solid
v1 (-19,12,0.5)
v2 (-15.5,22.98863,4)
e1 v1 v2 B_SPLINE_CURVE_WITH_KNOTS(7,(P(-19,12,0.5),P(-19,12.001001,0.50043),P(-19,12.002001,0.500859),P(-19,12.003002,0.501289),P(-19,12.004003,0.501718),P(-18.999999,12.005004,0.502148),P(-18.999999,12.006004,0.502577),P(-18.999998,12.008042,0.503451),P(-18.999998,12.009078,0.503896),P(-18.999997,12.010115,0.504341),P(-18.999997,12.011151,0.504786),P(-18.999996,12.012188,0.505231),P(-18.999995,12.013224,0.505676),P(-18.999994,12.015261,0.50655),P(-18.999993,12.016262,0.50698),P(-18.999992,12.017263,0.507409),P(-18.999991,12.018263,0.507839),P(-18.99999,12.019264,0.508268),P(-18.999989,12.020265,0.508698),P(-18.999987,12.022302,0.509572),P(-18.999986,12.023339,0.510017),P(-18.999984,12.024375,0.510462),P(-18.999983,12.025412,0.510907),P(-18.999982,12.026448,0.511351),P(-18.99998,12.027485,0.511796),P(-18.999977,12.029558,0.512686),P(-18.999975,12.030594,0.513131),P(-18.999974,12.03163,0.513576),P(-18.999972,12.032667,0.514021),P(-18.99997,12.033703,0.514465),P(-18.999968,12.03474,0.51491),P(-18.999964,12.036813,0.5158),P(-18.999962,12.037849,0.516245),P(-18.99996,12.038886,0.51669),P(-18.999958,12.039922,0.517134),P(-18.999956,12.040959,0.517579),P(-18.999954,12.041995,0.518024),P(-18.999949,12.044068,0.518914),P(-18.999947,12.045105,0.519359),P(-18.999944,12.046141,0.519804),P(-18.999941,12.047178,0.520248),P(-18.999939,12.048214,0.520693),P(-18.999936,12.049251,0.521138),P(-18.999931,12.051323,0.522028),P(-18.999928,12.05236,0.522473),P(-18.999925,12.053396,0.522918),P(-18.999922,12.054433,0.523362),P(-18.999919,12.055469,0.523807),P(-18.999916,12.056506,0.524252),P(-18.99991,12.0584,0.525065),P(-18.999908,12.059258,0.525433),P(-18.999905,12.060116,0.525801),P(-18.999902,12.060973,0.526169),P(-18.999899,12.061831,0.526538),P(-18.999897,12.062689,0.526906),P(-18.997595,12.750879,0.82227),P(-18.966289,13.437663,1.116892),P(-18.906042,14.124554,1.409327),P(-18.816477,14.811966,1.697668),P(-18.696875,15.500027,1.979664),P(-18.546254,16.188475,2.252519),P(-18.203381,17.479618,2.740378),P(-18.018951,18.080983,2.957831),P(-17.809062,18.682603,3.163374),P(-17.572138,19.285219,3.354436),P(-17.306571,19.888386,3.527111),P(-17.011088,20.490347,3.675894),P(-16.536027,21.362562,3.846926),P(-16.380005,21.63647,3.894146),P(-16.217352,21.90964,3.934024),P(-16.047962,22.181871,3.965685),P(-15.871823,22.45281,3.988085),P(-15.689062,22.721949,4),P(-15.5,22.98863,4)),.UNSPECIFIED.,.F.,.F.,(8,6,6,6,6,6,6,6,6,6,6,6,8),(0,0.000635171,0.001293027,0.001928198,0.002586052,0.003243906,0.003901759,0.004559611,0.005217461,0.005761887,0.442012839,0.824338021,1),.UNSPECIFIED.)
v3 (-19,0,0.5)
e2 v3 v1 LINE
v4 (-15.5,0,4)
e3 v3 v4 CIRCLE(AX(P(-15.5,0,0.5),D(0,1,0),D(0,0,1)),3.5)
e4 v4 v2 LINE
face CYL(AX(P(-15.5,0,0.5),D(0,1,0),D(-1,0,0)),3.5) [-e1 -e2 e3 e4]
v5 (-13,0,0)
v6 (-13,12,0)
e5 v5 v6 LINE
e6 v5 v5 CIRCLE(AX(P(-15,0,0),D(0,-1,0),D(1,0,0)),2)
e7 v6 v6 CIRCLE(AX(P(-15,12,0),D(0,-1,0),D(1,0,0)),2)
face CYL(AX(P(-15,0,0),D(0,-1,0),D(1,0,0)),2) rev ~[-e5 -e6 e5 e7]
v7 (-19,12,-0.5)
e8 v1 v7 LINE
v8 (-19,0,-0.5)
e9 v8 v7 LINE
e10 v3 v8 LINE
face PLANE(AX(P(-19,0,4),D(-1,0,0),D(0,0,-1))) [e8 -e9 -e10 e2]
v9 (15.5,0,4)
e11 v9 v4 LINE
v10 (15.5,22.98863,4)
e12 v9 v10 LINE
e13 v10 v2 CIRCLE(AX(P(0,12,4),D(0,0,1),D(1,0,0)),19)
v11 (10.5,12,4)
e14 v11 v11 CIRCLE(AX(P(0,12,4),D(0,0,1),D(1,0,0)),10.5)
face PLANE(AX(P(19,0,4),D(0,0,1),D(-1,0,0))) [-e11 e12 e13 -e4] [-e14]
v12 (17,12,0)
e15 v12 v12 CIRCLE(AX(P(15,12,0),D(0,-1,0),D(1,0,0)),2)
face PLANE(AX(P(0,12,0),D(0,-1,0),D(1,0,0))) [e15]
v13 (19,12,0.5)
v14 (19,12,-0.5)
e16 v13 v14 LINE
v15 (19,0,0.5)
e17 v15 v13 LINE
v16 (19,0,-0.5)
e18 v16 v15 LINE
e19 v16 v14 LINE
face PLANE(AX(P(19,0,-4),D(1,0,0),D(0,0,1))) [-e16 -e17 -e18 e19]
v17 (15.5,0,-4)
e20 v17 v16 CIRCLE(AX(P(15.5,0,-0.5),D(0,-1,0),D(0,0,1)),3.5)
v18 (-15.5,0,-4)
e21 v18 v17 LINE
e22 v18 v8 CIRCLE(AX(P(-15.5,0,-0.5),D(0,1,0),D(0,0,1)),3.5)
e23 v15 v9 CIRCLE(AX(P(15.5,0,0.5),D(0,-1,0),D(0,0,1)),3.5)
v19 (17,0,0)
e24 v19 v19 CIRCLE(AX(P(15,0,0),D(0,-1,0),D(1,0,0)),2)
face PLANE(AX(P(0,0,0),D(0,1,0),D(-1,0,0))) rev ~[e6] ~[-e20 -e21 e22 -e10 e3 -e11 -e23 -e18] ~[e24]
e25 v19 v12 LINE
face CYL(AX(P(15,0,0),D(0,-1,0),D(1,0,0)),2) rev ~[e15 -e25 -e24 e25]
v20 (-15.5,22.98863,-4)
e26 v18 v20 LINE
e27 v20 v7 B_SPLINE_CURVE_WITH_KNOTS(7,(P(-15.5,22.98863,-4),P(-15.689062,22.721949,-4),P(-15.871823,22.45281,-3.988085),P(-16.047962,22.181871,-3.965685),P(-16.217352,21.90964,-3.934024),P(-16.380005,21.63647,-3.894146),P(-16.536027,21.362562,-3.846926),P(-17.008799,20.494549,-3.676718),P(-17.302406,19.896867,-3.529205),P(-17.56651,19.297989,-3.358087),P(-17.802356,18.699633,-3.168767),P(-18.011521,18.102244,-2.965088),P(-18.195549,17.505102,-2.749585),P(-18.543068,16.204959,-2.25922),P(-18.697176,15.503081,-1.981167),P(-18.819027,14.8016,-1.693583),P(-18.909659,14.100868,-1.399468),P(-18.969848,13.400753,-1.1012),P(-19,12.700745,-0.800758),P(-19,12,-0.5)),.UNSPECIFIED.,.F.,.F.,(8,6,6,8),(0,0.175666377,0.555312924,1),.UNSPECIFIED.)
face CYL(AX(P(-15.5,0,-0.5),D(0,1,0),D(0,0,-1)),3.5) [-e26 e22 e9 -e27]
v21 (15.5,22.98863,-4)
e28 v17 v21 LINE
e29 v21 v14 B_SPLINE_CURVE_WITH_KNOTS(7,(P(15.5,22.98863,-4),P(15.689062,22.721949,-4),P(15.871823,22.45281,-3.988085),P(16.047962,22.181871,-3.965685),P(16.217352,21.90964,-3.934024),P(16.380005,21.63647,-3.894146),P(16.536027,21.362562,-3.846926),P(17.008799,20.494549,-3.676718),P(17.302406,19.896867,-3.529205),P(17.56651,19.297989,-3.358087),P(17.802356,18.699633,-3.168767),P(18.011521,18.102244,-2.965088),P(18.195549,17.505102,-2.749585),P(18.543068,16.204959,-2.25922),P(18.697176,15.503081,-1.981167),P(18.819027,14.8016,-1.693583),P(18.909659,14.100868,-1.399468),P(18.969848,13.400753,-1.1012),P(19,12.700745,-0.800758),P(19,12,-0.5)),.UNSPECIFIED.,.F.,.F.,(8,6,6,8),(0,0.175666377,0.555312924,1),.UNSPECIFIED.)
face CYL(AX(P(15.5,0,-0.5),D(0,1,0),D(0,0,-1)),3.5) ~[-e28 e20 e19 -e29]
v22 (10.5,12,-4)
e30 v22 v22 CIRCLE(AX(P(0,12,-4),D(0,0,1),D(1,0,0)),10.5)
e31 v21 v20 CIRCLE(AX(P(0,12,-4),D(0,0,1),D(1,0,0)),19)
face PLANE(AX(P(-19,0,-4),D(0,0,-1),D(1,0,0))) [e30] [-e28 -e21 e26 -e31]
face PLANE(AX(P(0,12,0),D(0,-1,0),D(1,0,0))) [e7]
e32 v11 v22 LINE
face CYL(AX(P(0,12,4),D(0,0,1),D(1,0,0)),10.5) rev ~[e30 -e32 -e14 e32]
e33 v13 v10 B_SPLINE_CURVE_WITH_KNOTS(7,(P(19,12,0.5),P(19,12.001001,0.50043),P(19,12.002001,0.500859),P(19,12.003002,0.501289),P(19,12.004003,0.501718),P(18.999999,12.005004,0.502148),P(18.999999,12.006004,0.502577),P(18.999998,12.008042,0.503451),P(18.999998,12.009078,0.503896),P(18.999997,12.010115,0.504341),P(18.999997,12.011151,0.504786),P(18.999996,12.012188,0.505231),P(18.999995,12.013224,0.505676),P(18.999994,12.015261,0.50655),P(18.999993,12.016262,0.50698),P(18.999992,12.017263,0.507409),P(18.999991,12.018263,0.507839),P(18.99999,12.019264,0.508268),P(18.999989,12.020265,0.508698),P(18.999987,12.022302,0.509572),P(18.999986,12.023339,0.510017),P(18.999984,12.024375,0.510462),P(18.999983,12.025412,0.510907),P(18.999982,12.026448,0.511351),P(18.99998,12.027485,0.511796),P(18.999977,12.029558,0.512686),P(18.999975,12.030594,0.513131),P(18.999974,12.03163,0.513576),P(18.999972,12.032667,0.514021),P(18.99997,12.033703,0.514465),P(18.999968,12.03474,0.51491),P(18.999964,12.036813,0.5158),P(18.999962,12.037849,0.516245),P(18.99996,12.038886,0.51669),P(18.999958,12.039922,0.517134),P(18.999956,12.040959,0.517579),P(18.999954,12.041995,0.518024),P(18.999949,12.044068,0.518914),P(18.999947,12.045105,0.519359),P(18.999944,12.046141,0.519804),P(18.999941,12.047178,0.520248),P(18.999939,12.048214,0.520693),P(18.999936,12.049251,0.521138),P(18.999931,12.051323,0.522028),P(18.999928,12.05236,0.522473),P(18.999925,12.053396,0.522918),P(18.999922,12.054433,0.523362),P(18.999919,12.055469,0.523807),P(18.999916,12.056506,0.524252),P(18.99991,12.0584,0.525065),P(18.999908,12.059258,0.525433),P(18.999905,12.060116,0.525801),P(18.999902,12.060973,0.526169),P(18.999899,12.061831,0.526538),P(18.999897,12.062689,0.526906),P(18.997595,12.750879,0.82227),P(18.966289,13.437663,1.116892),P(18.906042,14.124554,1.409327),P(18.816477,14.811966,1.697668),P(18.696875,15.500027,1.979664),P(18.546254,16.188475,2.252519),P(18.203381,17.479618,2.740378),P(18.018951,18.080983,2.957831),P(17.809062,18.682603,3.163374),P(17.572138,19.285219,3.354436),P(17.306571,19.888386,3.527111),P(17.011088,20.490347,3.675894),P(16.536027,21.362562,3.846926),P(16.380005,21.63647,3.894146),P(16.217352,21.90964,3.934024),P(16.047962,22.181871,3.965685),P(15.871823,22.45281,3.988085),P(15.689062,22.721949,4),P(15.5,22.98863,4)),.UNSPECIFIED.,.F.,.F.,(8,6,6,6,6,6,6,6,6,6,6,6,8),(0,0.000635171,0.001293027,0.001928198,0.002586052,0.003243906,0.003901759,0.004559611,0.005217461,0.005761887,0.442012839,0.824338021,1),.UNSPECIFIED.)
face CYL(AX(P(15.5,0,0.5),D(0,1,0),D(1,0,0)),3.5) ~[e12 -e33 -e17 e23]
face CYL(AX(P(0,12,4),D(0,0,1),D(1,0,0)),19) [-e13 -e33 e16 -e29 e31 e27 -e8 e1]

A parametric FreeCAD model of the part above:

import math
import FreeCAD as App
import Part
import Sketcher

V = App.Vector
Q = App.Units.Quantity


def edges_at(feature, points):
    """Names of the edges that pass closest to the given points."""
    edges = feature.Shape.Edges
    near = lambda p: min(range(len(edges)), key=lambda i: edges[i].distToShape(Part.Vertex(*p))[0])
    return sorted({f"Edge{near(p) + 1}" for p in points})

doc = App.newDocument("Part")
params = doc.addObject("Spreadsheet::Sheet", "Params")
for row, (alias, value) in enumerate([
    ("sketch1_width", "38 mm"),
    ("sketch1_height", "8 mm"),
    ("pad1_length", "35 mm"),
    ("fillet_radius", "3.5 mm"),
    ("sketch2_diameter", "21 mm"),
    ("pocket1_length", "35 mm"),
    ("sketch3_radius", "19 mm"),
    ("pocket2_length", "35 mm"),
    ("sketch4_diameter", "4 mm"),
    ("pocket3_length", "12 mm"),
], start=1):
    params.set(f"A{row}", alias)
    params.set(f"B{row}", "=" + value)
    params.setAlias(f"B{row}", alias)

body = doc.addObject("PartDesign::Body", "Body")

sketch1 = body.newObject("Sketcher::SketchObject", "Sketch")
sketch1.AttachmentSupport = (doc.getObject("XZ_Plane"), [""])
sketch1.MapMode = "FlatFace"
sketch1.addGeometry([
    Part.LineSegment(V(19, -4, 0), V(-19, -4, 0)),
    Part.LineSegment(V(-19, -4, 0), V(-19, 4, 0)),
    Part.LineSegment(V(-19, 4, 0), V(19, 4, 0)),
    Part.LineSegment(V(19, 4, 0), V(19, -4, 0)),
], False)
sketch1.addConstraint([
    Sketcher.Constraint("Coincident", 0, 2, 1, 1),
    Sketcher.Constraint("Coincident", 1, 2, 2, 1),
    Sketcher.Constraint("Coincident", 2, 2, 3, 1),
    Sketcher.Constraint("Coincident", 3, 2, 0, 1),
    Sketcher.Constraint("Horizontal", 0),
    Sketcher.Constraint("Vertical", 1),
    Sketcher.Constraint("Horizontal", 2),
    Sketcher.Constraint("Vertical", 3),
    Sketcher.Constraint("Symmetric", 0, 2, 2, 2, -1, 1),
    Sketcher.Constraint("DistanceX", 0, 2, 0, 1, Q("38 mm")),
    Sketcher.Constraint("DistanceY", 1, 1, 1, 2, Q("8 mm")),
])
sketch1.setExpression("Constraints[9]", "Params.sketch1_width")
sketch1.setExpression("Constraints[10]", "Params.sketch1_height")
pad1 = body.newObject("PartDesign::Pad", "Pad")
pad1.Profile = sketch1
pad1.setExpression("Length", "Params.pad1_length")
pad1.Reversed = True
doc.recompute()

fillet = body.newObject("PartDesign::Fillet", "Fillet")
fillet.Base = (pad1, edges_at(pad1, [
    (19, 17.5, 4),
    (19, 17.5, -4),
    (-19, 17.5, 4),
    (-19, 17.5, -4),
]))
fillet.setExpression("Radius", "Params.fillet_radius")

sketch2 = body.newObject("Sketcher::SketchObject", "Sketch001")
sketch2.AttachmentSupport = (doc.getObject("XY_Plane"), [""])
sketch2.MapMode = "FlatFace"
sketch2.AttachmentOffset = App.Placement(V(0, 0, 4), App.Rotation())
sketch2.addGeometry(Part.Circle(V(0, 12, 0), V(0, 0, 1), 10), False)
sketch2.addConstraint([
    Sketcher.Constraint("PointOnObject", 0, 3, -2),
    Sketcher.Constraint("Diameter", 0, Q("21 mm")),
    Sketcher.Constraint("DistanceY", -1, 1, 0, 3, Q("12 mm")),
])
sketch2.setExpression("Constraints[1]", "Params.sketch2_diameter")
pocket1 = body.newObject("PartDesign::Pocket", "Pocket")
pocket1.Profile = sketch2
pocket1.setExpression("Length", "Params.pocket1_length")

sketch3 = body.newObject("Sketcher::SketchObject", "Sketch002")
sketch3.AttachmentSupport = (doc.getObject("XY_Plane"), [""])
sketch3.MapMode = "FlatFace"
sketch3.AttachmentOffset = App.Placement(V(0, 0, 4), App.Rotation())
sketch3.addGeometry([
    Part.ArcOfCircle(Part.Circle(V(0, 12, 0), V(0, 0, 1), 19), math.radians(0), math.radians(180)),
    Part.LineSegment(V(19, 12, 0), V(32, 40, 0)),
    Part.LineSegment(V(32, 40, 0), V(-8, 40, 0)),
    Part.LineSegment(V(-8, 40, 0), V(-33, 36, 0)),
    Part.LineSegment(V(-33, 36, 0), V(-19, 12, 0)),
], False)
sketch3.addConstraint([
    Sketcher.Constraint("Coincident", 0, 1, 1, 1),
    Sketcher.Constraint("Coincident", 1, 2, 2, 1),
    Sketcher.Constraint("Coincident", 2, 2, 3, 1),
    Sketcher.Constraint("Coincident", 3, 2, 4, 1),
    Sketcher.Constraint("Coincident", 4, 2, 0, 2),
    Sketcher.Constraint("Symmetric", 0, 1, 4, 2, -2),
    Sketcher.Constraint("Radius", 0, Q("19 mm")),
    Sketcher.Constraint("DistanceY", -1, 1, 0, 3, Q("12 mm")),
    Sketcher.Constraint("DistanceY", -1, 1, 0, 1, Q("12 mm")),
    Sketcher.Constraint("DistanceX", 2, 2, 1, 2, Q("40.01 mm")),
    Sketcher.Constraint("DistanceY", 3, 2, 2, 2, Q("3.99 mm")),
    Sketcher.Constraint("Distance", 3, Q("24.702 mm")),
    Sketcher.Constraint("DistanceY", -1, 1, 2, 2, Q("39.959 mm")),
    Sketcher.Constraint("Distance", 1, Q("30.3907 mm")),
    Sketcher.Constraint("Distance", 4, Q("27.6846 mm")),
])
sketch3.setExpression("Constraints[6]", "Params.sketch3_radius")
pocket2 = body.newObject("PartDesign::Pocket", "Pocket001")
pocket2.Profile = sketch3
pocket2.setExpression("Length", "Params.pocket2_length")

sketch4 = body.newObject("Sketcher::SketchObject", "Sketch003")
sketch4.AttachmentSupport = (doc.getObject("XZ_Plane"), [""])
sketch4.MapMode = "FlatFace"
sketch4.addGeometry([
    Part.Circle(V(-15, 0, 0), V(0, 0, 1), 2),
    Part.Circle(V(15, 0, 0), V(0, 0, 1), 2),
], False)
sketch4.addConstraint([
    Sketcher.Constraint("Equal", 0, 1),
    Sketcher.Constraint("Symmetric", 0, 3, 1, 3, -1, 1),
    Sketcher.Constraint("PointOnObject", 0, 3, -1),
    Sketcher.Constraint("Diameter", 0, Q("4 mm")),
    Sketcher.Constraint("DistanceX", 0, 3, -1, 1, Q("15 mm")),
])
sketch4.setExpression("Constraints[3]", "Params.sketch4_diameter")
pocket3 = body.newObject("PartDesign::Pocket", "Pocket002")
pocket3.Profile = sketch4
pocket3.setExpression("Length", "Params.pocket3_length")

doc.recompute()
